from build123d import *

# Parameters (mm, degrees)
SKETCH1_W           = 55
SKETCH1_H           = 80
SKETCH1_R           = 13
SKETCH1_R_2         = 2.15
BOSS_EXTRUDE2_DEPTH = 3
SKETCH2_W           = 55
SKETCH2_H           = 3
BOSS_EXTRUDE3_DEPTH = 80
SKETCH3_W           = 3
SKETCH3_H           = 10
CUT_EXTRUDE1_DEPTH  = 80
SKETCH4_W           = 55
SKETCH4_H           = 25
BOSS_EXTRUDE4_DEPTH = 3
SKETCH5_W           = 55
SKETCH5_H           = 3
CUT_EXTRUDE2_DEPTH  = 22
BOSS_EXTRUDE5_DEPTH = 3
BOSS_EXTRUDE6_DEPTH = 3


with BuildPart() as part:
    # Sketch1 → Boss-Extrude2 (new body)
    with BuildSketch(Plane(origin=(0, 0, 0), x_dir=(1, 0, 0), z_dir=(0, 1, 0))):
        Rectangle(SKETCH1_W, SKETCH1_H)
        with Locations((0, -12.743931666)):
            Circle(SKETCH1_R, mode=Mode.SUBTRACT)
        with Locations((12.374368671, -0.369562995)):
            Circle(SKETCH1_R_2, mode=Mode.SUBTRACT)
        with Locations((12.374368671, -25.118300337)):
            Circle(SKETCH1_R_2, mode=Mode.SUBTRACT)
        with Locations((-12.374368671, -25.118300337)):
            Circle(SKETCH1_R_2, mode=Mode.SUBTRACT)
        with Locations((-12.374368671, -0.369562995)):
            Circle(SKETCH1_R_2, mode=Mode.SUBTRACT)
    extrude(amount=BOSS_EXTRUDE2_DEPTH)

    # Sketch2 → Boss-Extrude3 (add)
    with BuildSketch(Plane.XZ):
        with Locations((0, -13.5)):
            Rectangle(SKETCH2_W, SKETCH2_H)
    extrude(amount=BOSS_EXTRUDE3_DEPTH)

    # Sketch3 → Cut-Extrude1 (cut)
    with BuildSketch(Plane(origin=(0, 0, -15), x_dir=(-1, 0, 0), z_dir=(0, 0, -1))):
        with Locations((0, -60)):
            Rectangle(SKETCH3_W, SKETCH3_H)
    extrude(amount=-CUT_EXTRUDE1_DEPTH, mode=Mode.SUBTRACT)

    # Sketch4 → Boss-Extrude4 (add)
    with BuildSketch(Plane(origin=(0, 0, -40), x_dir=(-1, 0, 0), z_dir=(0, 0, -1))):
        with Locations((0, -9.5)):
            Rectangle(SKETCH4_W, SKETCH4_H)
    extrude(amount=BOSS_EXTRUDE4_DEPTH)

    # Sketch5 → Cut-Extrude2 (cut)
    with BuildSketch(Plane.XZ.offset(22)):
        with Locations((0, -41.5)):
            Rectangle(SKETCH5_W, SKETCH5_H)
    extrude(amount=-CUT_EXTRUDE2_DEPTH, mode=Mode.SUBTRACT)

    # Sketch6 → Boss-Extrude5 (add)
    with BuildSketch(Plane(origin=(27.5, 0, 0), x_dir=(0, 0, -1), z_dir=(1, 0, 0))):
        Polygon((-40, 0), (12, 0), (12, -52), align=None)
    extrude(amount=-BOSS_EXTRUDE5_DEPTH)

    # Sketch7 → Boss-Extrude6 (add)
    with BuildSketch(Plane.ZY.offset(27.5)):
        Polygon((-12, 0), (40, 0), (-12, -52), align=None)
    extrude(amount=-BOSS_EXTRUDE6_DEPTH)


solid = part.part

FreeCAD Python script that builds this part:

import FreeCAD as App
import Part
import Sketcher

V = App.Vector
Q = App.Units.Quantity


def add_polygon(sketch, points):
    """Adds a closed chain of lines whose ends are joined by coincident constraints."""
    first, n = sketch.GeometryCount, len(points)
    for a, b in zip(points, points[1:] + points[:1]):
        sketch.addGeometry(Part.LineSegment(App.Vector(*a, 0), App.Vector(*b, 0)), False)
    for i in range(n):
        sketch.addConstraint(Sketcher.Constraint("Coincident", first + i, 2, first + (i + 1) % n, 1))

doc = App.newDocument("Part")
body = doc.addObject("PartDesign::Body", "Body")

sketch1 = body.newObject("Sketcher::SketchObject", "Sketch")
sketch1.AttachmentSupport = (doc.getObject("XZ_Plane"), [""])
sketch1.MapMode = "FlatFace"
add_polygon(sketch1, [(-27.5, -40), (-27.5, 40), (27.5, 40), (27.5, -40)])
sketch1.addGeometry(Part.Circle(V(-12.4, 25.1, 0), V(0, 0, 1), 2.1), False)
sketch1.addGeometry(Part.Circle(V(0, 12.7, 0), V(0, 0, 1), 13), False)
sketch1.addGeometry(Part.Circle(V(12.4, 25.1, 0), V(0, 0, 1), 2.1), False)
sketch1.addGeometry(Part.Circle(V(-12.4, 0.4, 0), V(0, 0, 1), 2.1), False)
sketch1.addGeometry(Part.Circle(V(12.4, 0.4, 0), V(0, 0, 1), 2.1), False)
sketch1.addConstraint([
    Sketcher.Constraint("Vertical", 0),
    Sketcher.Constraint("Horizontal", 1),
    Sketcher.Constraint("Vertical", 2),
    Sketcher.Constraint("Horizontal", 3),
    Sketcher.Constraint("Equal", 4, 6),
    Sketcher.Constraint("Equal", 6, 7),
    Sketcher.Constraint("Equal", 7, 8),
    Sketcher.Constraint("Symmetric", 0, 2, 2, 2, -1, 1),
    Sketcher.Constraint("Symmetric", 4, 3, 6, 3, -2),
    Sketcher.Constraint("Symmetric", 7, 3, 8, 3, -2),
    Sketcher.Constraint("PointOnObject", 5, 3, -2),
    Sketcher.Constraint("Vertical", 4, 3, 7, 3),
    Sketcher.Constraint("Diameter", 5, Q("26 mm")),
    Sketcher.Constraint("Diameter", 4, Q("4.3 mm")),
    Sketcher.Constraint("DistanceX", 1, 1, 1, 2, Q("55 mm")),
    Sketcher.Constraint("DistanceY", 0, 1, 0, 2, Q("80 mm")),
    Sketcher.Constraint("DistanceY", -1, 1, 4, 3, Q("25.1183 mm")),
    Sketcher.Constraint("DistanceX", 4, 3, -1, 1, Q("12.374369 mm")),
    Sketcher.Constraint("DistanceY", -1, 1, 5, 3, Q("12.743932 mm")),
    Sketcher.Constraint("DistanceY", 7, 3, 5, 3, Q("12.374369 mm")),
])
pad1 = body.newObject("PartDesign::Pad", "Pad")
pad1.Profile = sketch1
pad1.Length = 3
pad1.Reversed = True

sketch2 = body.newObject("Sketcher::SketchObject", "Sketch001")
sketch2.AttachmentSupport = (doc.getObject("XZ_Plane"), [""])
sketch2.MapMode = "FlatFace"
add_polygon(sketch2, [(-27.5, -12), (-27.5, -15), (27.5, -15), (27.5, -12)])
sketch2.addConstraint([
    Sketcher.Constraint("Vertical", 0),
    Sketcher.Constraint("Horizontal", 1),
    Sketcher.Constraint("Vertical", 2),
    Sketcher.Constraint("Horizontal", 3),
    Sketcher.Constraint("DistanceX", 1, 1, 1, 2, Q("55 mm")),
    Sketcher.Constraint("DistanceY", 0, 2, 0, 1, Q("3 mm")),
    Sketcher.Constraint("DistanceY", 0, 2, -1, 1, Q("15 mm")),
    Sketcher.Constraint("DistanceX", 0, 2, -1, 1, Q("27.5 mm")),
])
pad2 = body.newObject("PartDesign::Pad", "Pad001")
pad2.Profile = sketch2
pad2.Length = 80

sketch3 = body.newObject("Sketcher::SketchObject", "Sketch002")
sketch3.AttachmentSupport = (doc.getObject("XY_Plane"), [""])
sketch3.MapMode = "FlatFace"
sketch3.AttachmentOffset = App.Placement(V(0, 0, -15), App.Rotation())
add_polygon(sketch3, [(1.5, -55), (1.5, -65), (-1.5, -65), (-1.5, -55)])
sketch3.addConstraint([
    Sketcher.Constraint("Vertical", 0),
    Sketcher.Constraint("Horizontal", 1),
    Sketcher.Constraint("Vertical", 2),
    Sketcher.Constraint("Horizontal", 3),
    Sketcher.Constraint("DistanceX", 1, 2, 1, 1, Q("3 mm")),
    Sketcher.Constraint("DistanceY", 0, 2, 0, 1, Q("10 mm")),
    Sketcher.Constraint("DistanceY", 0, 2, -1, 1, Q("65 mm")),
    Sketcher.Constraint("DistanceX", -1, 1, 0, 2, Q("1.5 mm")),
])
pocket1 = body.newObject("PartDesign::Pocket", "Pocket")
pocket1.Profile = sketch3
pocket1.Length = 80
pocket1.Reversed = True

sketch4 = body.newObject("Sketcher::SketchObject", "Sketch003")
sketch4.AttachmentSupport = (doc.getObject("XY_Plane"), [""])
sketch4.MapMode = "FlatFace"
sketch4.AttachmentOffset = App.Placement(V(0, 0, -40), App.Rotation())
add_polygon(sketch4, [(28, 3), (28, -22), (-28, -22), (-28, 3)])
sketch4.addConstraint([
    Sketcher.Constraint("Vertical", 0),
    Sketcher.Constraint("Horizontal", 1),
    Sketcher.Constraint("Vertical", 2),
    Sketcher.Constraint("Horizontal", 3),
    Sketcher.Constraint("DistanceX", 1, 2, 1, 1, Q("55 mm")),
    Sketcher.Constraint("DistanceY", 0, 2, 0, 1, Q("25 mm")),
    Sketcher.Constraint("DistanceY", 0, 2, -1, 1, Q("22 mm")),
    Sketcher.Constraint("DistanceX", -1, 1, 0, 2, Q("27.5 mm")),
])
pad3 = body.newObject("PartDesign::Pad", "Pad002")
pad3.Profile = sketch4
pad3.Length = 3
pad3.Reversed = True

sketch5 = body.newObject("Sketcher::SketchObject", "Sketch004")
sketch5.AttachmentSupport = (doc.getObject("XZ_Plane"), [""])
sketch5.MapMode = "FlatFace"
sketch5.AttachmentOffset = App.Placement(V(0, 0, 22), App.Rotation())
add_polygon(sketch5, [(-27.5, -40), (-27.5, -43), (27.5, -43), (27.5, -40)])
sketch5.addConstraint([
    Sketcher.Constraint("Vertical", 0),
    Sketcher.Constraint("Horizontal", 1),
    Sketcher.Constraint("Vertical", 2),
    Sketcher.Constraint("Horizontal", 3),
    Sketcher.Constraint("DistanceX", 1, 1, 1, 2, Q("55 mm")),
    Sketcher.Constraint("DistanceY", 0, 2, 0, 1, Q("3 mm")),
    Sketcher.Constraint("DistanceY", 0, 2, -1, 1, Q("43 mm")),
    Sketcher.Constraint("DistanceX", 0, 2, -1, 1, Q("27.5 mm")),
])
pocket2 = body.newObject("PartDesign::Pocket", "Pocket001")
pocket2.Profile = sketch5
pocket2.Length = 22

sketch6 = body.newObject("Sketcher::SketchObject", "Sketch005")
sketch6.AttachmentSupport = (doc.getObject("YZ_Plane"), [""])
sketch6.MapMode = "FlatFace"
sketch6.AttachmentOffset = App.Placement(V(0, 0, 27.5), App.Rotation())
add_polygon(sketch6, [(0, -12), (0, 40), (-52, -12)])
sketch6.addConstraint([
    Sketcher.Constraint("Vertical", 0),
    Sketcher.Constraint("Horizontal", 2),
    Sketcher.Constraint("PointOnObject", 0, 2, -2),
    Sketcher.Constraint("Equal", 2, 0),
    Sketcher.Constraint("DistanceX", 2, 1, 2, 2, Q("52 mm")),
    Sketcher.Constraint("DistanceY", -1, 1, 0, 2, Q("40 mm")),
])
pad4 = body.newObject("PartDesign::Pad", "Pad003")
pad4.Profile = sketch6
pad4.Length = 3
pad4.Reversed = True

sketch7 = body.newObject("Sketcher::SketchObject", "Sketch006")
sketch7.AttachmentSupport = (doc.getObject("YZ_Plane"), [""])
sketch7.MapMode = "FlatFace"
sketch7.AttachmentOffset = App.Placement(V(0, 0, -27.5), App.Rotation())
add_polygon(sketch7, [(0, 40), (0, -12), (-52, -12)])
sketch7.addConstraint([
    Sketcher.Constraint("Vertical", 0),
    Sketcher.Constraint("Horizontal", 1),
    Sketcher.Constraint("PointOnObject", 0, 2, -2),
    Sketcher.Constraint("Equal", 1, 0),
    Sketcher.Constraint("DistanceX", 1, 2, 1, 1, Q("52 mm")),
    Sketcher.Constraint("DistanceY", 0, 2, -1, 1, Q("12 mm")),
])
pad5 = body.newObject("PartDesign::Pad", "Pad004")
pad5.Profile = sketch7
pad5.Length = 3

doc.recompute()
